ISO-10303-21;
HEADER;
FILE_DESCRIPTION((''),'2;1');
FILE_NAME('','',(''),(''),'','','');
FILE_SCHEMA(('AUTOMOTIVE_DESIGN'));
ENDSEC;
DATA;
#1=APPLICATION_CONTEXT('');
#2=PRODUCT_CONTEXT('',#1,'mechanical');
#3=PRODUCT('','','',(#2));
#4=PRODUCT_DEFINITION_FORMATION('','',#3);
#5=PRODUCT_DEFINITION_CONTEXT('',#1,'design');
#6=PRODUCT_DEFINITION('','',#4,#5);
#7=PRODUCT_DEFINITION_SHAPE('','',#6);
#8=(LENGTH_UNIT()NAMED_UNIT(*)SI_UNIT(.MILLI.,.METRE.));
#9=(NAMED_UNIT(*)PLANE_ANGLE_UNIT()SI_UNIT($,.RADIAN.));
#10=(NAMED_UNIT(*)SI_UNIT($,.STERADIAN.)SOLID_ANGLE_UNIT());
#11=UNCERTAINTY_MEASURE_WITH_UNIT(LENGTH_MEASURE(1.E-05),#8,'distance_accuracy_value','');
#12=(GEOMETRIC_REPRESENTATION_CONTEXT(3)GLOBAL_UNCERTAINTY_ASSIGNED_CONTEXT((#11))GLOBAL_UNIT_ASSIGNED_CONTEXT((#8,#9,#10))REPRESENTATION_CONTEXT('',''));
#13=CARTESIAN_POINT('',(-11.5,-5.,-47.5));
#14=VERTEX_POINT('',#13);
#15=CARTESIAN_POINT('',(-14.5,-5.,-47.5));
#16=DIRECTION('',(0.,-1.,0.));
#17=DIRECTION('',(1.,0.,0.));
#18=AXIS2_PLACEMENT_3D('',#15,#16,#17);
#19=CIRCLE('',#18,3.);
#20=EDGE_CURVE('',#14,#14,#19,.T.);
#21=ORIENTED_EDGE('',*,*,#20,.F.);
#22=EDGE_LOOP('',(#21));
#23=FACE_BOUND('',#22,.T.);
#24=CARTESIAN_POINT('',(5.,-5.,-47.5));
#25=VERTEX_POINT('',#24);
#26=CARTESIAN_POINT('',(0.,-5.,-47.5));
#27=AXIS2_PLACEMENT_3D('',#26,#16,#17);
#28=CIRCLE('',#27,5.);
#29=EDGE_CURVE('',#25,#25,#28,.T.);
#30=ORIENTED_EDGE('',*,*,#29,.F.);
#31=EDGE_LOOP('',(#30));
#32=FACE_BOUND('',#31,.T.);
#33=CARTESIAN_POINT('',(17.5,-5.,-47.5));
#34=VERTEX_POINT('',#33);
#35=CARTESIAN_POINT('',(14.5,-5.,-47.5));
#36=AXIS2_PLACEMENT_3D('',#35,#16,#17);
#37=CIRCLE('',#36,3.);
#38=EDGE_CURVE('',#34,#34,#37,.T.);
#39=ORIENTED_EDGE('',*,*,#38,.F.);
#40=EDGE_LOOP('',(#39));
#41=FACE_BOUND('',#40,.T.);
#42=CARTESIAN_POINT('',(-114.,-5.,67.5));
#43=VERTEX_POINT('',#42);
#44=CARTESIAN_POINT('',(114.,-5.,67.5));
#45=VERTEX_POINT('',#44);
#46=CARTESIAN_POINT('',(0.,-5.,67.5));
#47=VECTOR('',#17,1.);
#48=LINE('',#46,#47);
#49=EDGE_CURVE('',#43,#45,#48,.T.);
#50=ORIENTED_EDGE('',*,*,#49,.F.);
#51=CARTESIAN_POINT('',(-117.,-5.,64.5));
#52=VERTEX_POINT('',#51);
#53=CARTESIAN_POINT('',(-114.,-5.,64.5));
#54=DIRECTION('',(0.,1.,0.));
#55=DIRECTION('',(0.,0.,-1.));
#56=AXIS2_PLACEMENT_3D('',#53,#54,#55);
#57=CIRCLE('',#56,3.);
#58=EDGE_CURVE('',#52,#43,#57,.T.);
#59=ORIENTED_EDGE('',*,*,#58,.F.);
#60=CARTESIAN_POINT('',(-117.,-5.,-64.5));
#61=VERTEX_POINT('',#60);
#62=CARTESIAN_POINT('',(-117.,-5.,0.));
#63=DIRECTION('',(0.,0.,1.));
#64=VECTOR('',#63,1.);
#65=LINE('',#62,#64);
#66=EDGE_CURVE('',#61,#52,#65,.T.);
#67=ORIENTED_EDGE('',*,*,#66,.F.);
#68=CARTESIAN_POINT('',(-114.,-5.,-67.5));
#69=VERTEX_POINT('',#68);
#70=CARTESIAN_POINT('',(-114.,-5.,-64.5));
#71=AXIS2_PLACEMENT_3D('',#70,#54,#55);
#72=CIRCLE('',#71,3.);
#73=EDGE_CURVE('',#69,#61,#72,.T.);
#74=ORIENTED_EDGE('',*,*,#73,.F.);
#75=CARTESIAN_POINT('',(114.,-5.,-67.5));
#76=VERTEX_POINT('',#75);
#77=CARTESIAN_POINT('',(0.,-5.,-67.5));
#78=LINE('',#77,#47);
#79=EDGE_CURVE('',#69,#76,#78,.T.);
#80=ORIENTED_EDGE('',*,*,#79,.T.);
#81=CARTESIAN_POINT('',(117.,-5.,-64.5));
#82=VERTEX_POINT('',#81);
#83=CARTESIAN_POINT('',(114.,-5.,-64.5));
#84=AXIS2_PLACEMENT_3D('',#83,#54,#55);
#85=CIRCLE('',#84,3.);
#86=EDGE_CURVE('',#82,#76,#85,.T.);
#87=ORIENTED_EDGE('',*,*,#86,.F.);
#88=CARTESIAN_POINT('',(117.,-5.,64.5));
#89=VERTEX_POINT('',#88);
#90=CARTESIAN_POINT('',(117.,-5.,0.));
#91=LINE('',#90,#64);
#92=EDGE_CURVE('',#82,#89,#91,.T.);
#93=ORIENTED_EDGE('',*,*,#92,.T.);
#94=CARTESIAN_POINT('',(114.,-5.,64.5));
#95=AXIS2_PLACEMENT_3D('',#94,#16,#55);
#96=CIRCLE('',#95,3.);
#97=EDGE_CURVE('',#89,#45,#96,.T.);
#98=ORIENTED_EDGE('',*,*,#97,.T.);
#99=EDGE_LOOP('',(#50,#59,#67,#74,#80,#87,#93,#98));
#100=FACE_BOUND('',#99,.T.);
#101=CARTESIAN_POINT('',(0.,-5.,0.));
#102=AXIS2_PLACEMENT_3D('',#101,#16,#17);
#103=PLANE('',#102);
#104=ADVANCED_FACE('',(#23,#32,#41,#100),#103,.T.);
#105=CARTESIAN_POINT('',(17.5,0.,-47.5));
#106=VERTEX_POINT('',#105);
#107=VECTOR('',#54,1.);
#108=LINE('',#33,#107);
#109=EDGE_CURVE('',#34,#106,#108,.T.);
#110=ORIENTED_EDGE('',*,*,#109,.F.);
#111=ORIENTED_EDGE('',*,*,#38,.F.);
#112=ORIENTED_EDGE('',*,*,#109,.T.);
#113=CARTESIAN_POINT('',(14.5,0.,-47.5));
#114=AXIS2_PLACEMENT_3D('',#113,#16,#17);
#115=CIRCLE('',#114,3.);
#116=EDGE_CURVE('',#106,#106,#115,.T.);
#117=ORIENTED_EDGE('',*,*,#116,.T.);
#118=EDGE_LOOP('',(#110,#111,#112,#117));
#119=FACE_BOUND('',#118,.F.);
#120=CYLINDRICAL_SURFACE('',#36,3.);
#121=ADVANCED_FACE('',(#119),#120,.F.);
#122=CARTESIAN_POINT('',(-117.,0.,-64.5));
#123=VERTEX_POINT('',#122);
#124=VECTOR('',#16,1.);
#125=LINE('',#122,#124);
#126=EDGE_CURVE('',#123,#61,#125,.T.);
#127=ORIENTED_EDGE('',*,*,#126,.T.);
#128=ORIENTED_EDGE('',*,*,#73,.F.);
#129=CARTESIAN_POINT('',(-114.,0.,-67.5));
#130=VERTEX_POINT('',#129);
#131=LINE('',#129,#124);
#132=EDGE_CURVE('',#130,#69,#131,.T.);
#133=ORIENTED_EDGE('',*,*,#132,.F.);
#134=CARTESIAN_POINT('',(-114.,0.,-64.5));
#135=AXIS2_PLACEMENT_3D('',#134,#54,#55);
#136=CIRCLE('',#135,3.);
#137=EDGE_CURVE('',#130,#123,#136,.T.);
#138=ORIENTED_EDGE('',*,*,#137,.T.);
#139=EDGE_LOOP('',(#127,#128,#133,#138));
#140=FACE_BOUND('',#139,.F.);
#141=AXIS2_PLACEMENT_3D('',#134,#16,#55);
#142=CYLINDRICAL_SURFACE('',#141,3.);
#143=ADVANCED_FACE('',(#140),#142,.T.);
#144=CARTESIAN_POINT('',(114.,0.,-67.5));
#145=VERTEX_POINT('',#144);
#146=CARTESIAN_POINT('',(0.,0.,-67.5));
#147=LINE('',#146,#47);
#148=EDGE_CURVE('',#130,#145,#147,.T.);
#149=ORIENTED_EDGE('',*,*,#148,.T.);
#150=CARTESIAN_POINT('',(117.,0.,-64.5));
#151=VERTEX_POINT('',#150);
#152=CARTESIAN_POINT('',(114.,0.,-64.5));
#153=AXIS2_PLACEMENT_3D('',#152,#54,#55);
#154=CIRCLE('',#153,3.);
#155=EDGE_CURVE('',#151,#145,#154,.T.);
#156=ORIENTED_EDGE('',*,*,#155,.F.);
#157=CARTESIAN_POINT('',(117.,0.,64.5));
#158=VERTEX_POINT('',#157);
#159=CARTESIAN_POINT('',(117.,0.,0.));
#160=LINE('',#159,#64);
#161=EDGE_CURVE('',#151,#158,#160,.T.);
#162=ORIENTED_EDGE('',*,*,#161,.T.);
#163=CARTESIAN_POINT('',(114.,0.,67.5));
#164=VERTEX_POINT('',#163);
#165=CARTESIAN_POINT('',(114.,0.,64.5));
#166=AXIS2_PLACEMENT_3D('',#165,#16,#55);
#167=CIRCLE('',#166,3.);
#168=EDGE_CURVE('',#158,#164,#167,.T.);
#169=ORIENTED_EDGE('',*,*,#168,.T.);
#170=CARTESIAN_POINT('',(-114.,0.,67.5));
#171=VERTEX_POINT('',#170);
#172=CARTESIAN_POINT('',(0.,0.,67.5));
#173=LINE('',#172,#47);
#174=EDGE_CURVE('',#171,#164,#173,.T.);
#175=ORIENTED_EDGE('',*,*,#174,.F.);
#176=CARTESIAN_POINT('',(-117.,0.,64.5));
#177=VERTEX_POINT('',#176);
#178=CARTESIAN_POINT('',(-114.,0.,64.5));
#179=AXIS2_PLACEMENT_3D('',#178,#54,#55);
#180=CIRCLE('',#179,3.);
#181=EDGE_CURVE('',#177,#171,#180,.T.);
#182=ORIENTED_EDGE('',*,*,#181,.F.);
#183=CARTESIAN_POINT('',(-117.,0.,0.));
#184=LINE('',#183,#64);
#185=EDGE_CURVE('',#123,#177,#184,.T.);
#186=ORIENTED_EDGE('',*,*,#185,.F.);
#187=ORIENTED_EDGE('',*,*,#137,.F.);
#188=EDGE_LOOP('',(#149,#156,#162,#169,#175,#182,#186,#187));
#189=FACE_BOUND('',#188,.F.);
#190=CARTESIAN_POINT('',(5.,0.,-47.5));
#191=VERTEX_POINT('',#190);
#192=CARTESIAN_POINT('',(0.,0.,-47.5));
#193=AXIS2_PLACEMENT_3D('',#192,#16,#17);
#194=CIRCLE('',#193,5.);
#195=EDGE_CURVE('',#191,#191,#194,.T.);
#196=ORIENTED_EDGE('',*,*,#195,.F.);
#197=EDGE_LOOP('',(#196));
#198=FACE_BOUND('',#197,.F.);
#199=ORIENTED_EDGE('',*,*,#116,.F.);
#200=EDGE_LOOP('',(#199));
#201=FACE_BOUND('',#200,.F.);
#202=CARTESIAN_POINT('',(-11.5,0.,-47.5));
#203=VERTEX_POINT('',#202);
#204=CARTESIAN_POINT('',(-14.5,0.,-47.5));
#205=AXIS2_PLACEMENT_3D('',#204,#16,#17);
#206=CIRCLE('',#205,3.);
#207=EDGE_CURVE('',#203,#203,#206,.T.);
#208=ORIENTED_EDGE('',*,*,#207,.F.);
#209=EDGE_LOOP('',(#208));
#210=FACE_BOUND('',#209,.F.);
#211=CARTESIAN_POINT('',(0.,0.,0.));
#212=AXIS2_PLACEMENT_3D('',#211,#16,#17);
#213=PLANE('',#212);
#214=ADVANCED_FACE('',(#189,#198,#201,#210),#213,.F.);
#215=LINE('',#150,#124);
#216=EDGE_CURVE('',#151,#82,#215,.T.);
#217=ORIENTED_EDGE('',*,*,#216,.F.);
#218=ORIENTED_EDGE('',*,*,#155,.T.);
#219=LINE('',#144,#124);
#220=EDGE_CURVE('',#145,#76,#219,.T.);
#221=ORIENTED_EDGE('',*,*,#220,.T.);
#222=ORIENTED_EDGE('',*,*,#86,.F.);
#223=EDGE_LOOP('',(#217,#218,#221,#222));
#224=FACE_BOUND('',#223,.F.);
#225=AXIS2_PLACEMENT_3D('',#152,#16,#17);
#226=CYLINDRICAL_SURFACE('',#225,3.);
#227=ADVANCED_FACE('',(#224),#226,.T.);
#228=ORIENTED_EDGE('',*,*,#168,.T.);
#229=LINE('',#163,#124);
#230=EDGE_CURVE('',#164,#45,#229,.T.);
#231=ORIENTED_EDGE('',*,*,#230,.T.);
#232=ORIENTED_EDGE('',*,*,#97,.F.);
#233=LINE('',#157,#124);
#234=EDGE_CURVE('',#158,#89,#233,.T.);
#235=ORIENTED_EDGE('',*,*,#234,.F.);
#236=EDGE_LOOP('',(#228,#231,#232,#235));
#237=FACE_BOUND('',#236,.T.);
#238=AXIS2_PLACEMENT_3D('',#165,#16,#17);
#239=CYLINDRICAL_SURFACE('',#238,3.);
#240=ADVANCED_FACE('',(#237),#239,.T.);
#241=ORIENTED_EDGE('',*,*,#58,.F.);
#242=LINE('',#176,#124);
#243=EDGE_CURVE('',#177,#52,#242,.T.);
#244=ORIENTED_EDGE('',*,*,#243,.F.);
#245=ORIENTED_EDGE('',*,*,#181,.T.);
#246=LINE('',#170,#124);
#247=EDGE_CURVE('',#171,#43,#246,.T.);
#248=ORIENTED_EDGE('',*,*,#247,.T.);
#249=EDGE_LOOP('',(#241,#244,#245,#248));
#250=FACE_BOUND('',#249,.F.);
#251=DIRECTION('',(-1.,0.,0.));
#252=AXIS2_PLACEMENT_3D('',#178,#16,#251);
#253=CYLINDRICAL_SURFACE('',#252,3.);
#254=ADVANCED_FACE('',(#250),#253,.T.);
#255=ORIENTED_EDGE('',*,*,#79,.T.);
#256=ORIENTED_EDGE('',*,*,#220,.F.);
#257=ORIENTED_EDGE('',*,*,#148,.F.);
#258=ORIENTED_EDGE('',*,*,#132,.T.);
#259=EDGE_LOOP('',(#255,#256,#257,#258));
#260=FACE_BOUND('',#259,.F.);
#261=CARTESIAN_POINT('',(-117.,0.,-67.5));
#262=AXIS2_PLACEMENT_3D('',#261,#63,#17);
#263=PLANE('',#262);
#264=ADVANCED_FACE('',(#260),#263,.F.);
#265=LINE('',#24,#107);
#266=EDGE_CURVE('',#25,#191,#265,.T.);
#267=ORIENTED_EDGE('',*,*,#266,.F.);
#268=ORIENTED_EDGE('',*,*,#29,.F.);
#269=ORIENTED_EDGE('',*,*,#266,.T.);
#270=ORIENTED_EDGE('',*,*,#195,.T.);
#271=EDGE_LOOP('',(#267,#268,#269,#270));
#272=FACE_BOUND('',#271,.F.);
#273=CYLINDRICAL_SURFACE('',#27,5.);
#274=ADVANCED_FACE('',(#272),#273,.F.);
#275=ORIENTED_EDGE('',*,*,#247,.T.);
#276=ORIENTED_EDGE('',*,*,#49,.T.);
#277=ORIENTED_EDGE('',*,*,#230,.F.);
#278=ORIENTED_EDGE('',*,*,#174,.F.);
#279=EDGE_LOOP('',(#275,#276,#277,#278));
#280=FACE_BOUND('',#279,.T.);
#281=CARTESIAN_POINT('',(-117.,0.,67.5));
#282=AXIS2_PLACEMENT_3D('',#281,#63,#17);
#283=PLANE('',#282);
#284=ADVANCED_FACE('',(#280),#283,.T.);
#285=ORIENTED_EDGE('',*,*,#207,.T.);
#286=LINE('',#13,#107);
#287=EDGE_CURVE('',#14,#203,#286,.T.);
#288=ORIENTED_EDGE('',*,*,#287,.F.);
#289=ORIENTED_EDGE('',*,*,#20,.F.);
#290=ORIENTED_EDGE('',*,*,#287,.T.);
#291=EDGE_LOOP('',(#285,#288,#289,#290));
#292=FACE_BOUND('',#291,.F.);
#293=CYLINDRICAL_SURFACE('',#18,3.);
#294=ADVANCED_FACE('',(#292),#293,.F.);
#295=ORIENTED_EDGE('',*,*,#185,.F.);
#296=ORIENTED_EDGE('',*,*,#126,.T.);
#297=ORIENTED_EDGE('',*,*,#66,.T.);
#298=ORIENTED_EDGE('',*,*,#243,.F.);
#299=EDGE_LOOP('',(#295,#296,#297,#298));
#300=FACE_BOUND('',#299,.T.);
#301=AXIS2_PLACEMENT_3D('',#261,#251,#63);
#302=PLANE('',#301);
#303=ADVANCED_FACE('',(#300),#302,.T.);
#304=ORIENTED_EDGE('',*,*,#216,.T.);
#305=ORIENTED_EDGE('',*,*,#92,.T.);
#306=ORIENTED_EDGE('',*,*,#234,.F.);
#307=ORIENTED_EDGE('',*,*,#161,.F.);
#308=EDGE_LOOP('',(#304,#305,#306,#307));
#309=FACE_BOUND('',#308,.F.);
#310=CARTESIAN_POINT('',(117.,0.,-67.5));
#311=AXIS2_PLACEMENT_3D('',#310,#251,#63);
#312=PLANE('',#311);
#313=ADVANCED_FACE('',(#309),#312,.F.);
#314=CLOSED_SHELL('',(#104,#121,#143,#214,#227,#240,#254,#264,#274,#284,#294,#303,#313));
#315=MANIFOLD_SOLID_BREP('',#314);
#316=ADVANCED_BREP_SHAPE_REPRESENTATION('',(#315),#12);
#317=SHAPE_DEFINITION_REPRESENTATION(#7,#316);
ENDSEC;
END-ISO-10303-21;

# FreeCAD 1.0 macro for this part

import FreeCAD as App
import Part
import Sketcher
from FreeCAD import Vector
Q = App.Units.Quantity


def edges_at(feature, points):
    """Names of the edges that pass closest to the given points."""
    edges = feature.Shape.Edges
    near = lambda p: min(range(len(edges)), key=lambda i: edges[i].distToShape(Part.Vertex(*p))[0])
    return sorted({f"Edge{near(p) + 1}" for p in points})


def add_polygon(sketch, points):
    """Adds a closed chain of lines whose ends are joined by coincident constraints."""
    first, n = sketch.GeometryCount, len(points)
    for a, b in zip(points, points[1:] + points[:1]):
        sketch.addGeometry(Part.LineSegment(App.Vector(*a, 0), App.Vector(*b, 0)), False)
    for i in range(n):
        sketch.addConstraint(Sketcher.Constraint("Coincident", first + i, 2, first + (i + 1) % n, 1))

doc = App.newDocument("Part")
params = doc.addObject("Spreadsheet::Sheet", "Params")
for row, (alias, value) in enumerate([
    ("sketch1_width", "234 mm"),
    ("sketch1_height", "135 mm"),
    ("pad1_length", "5 mm"),
    ("fillet_radius", "3 mm"),
    ("fillet2_radius", "3 mm"),
    ("fillet3_radius", "3 mm"),
    ("fillet4_radius", "3 mm"),
    ("sketch2_diameter", "6 mm"),
    ("sketch2_diameter2", "10 mm"),
], start=1):
    params.set(f"A{row}", alias)
    params.set(f"B{row}", "=" + value)
    params.setAlias(f"B{row}", alias)

body = doc.addObject("PartDesign::Body", "Body")

# Sketch on XZ plane
sketch1 = body.newObject("Sketcher::SketchObject", "Sketch")
sketch1.AttachmentSupport = (doc.getObject("XZ_Plane"), [""])
sketch1.MapMode = "FlatFace"
add_polygon(sketch1, [(-117, 68), (-117, -68), (117, -68), (117, 68)])  # lines 0-3
sketch1.addConstraint(Sketcher.Constraint("Vertical", 0))
sketch1.addConstraint(Sketcher.Constraint("Horizontal", 1))
sketch1.addConstraint(Sketcher.Constraint("Vertical", 2))
sketch1.addConstraint(Sketcher.Constraint("Horizontal", 3))
sketch1.addConstraint(Sketcher.Constraint("Symmetric", 0, 2, 2, 2, -1, 1))
sketch1.addConstraint(Sketcher.Constraint("DistanceX", 1, 1, 1, 2, Q("234 mm")))
sketch1.addConstraint(Sketcher.Constraint("DistanceY", 0, 2, 0, 1, Q("135 mm")))
sketch1.setExpression("Constraints[9]", "Params.sketch1_width")
sketch1.setExpression("Constraints[10]", "Params.sketch1_height")
pad1 = body.newObject("PartDesign::Pad", "Pad")
pad1.Profile = sketch1
pad1.setExpression("Length", "Params.pad1_length")
doc.recompute()

fillet = body.newObject("PartDesign::Fillet", "Fillet")
fillet.Base = (pad1, edges_at(pad1, [(117, -2.5, 67.5)]))
fillet.setExpression("Radius", "Params.fillet_radius")
doc.recompute()

fillet2 = body.newObject("PartDesign::Fillet", "Fillet001")
fillet2.Base = (fillet, edges_at(fillet, [(117, -2.5, -67.5)]))
fillet2.setExpression("Radius", "Params.fillet2_radius")
doc.recompute()

fillet3 = body.newObject("PartDesign::Fillet", "Fillet002")
fillet3.Base = (fillet2, edges_at(fillet2, [(-117, -2.5, -67.5)]))
fillet3.setExpression("Radius", "Params.fillet3_radius")
doc.recompute()

fillet4 = body.newObject("PartDesign::Fillet", "Fillet003")
fillet4.Base = (fillet3, edges_at(fillet3, [(-117, -2.5, 67.5)]))
fillet4.setExpression("Radius", "Params.fillet4_radius")

# Sketch on XZ plane
sketch2 = body.newObject("Sketcher::SketchObject", "Sketch001")
sketch2.AttachmentSupport = (doc.getObject("XZ_Plane"), [""])
sketch2.MapMode = "FlatFace"
sketch2.AttachmentOffset = App.Placement(Vector(0, 0, 5), App.Rotation())
sketch2.addGeometry(Part.Circle(Vector(-14.5, -47.5, 0), Vector(0, 0, 1), 3), False)
sketch2.addGeometry(Part.Circle(Vector(0, -47.5, 0), Vector(0, 0, 1), 5), False)
sketch2.addGeometry(Part.Circle(Vector(14.5, -47.5, 0), Vector(0, 0, 1), 3), False)
sketch2.addConstraint(Sketcher.Constraint("Equal", 0, 2))
sketch2.addConstraint(Sketcher.Constraint("Symmetric", 0, 3, 2, 3, -2))
sketch2.addConstraint(Sketcher.Constraint("PointOnObject", 1, 3, -2))
sketch2.addConstraint(Sketcher.Constraint("Horizontal", 0, 3, 1, 3))
sketch2.addConstraint(Sketcher.Constraint("Diameter", 0, Q("6 mm")))
sketch2.addConstraint(Sketcher.Constraint("Diameter", 1, Q("10 mm")))
sketch2.addConstraint(Sketcher.Constraint("DistanceX", 0, 3, 2, 3, Q("29 mm")))
sketch2.addConstraint(Sketcher.Constraint("DistanceY", 0, 3, -1, 1, Q("47.5 mm")))
sketch2.setExpression("Constraints[4]", "Params.sketch2_diameter")
sketch2.setExpression("Constraints[5]", "Params.sketch2_diameter2")
pocket1 = body.newObject("PartDesign::Pocket", "Pocket")
pocket1.Profile = sketch2
pocket1.Type = "ThroughAll"

doc.recompute()
